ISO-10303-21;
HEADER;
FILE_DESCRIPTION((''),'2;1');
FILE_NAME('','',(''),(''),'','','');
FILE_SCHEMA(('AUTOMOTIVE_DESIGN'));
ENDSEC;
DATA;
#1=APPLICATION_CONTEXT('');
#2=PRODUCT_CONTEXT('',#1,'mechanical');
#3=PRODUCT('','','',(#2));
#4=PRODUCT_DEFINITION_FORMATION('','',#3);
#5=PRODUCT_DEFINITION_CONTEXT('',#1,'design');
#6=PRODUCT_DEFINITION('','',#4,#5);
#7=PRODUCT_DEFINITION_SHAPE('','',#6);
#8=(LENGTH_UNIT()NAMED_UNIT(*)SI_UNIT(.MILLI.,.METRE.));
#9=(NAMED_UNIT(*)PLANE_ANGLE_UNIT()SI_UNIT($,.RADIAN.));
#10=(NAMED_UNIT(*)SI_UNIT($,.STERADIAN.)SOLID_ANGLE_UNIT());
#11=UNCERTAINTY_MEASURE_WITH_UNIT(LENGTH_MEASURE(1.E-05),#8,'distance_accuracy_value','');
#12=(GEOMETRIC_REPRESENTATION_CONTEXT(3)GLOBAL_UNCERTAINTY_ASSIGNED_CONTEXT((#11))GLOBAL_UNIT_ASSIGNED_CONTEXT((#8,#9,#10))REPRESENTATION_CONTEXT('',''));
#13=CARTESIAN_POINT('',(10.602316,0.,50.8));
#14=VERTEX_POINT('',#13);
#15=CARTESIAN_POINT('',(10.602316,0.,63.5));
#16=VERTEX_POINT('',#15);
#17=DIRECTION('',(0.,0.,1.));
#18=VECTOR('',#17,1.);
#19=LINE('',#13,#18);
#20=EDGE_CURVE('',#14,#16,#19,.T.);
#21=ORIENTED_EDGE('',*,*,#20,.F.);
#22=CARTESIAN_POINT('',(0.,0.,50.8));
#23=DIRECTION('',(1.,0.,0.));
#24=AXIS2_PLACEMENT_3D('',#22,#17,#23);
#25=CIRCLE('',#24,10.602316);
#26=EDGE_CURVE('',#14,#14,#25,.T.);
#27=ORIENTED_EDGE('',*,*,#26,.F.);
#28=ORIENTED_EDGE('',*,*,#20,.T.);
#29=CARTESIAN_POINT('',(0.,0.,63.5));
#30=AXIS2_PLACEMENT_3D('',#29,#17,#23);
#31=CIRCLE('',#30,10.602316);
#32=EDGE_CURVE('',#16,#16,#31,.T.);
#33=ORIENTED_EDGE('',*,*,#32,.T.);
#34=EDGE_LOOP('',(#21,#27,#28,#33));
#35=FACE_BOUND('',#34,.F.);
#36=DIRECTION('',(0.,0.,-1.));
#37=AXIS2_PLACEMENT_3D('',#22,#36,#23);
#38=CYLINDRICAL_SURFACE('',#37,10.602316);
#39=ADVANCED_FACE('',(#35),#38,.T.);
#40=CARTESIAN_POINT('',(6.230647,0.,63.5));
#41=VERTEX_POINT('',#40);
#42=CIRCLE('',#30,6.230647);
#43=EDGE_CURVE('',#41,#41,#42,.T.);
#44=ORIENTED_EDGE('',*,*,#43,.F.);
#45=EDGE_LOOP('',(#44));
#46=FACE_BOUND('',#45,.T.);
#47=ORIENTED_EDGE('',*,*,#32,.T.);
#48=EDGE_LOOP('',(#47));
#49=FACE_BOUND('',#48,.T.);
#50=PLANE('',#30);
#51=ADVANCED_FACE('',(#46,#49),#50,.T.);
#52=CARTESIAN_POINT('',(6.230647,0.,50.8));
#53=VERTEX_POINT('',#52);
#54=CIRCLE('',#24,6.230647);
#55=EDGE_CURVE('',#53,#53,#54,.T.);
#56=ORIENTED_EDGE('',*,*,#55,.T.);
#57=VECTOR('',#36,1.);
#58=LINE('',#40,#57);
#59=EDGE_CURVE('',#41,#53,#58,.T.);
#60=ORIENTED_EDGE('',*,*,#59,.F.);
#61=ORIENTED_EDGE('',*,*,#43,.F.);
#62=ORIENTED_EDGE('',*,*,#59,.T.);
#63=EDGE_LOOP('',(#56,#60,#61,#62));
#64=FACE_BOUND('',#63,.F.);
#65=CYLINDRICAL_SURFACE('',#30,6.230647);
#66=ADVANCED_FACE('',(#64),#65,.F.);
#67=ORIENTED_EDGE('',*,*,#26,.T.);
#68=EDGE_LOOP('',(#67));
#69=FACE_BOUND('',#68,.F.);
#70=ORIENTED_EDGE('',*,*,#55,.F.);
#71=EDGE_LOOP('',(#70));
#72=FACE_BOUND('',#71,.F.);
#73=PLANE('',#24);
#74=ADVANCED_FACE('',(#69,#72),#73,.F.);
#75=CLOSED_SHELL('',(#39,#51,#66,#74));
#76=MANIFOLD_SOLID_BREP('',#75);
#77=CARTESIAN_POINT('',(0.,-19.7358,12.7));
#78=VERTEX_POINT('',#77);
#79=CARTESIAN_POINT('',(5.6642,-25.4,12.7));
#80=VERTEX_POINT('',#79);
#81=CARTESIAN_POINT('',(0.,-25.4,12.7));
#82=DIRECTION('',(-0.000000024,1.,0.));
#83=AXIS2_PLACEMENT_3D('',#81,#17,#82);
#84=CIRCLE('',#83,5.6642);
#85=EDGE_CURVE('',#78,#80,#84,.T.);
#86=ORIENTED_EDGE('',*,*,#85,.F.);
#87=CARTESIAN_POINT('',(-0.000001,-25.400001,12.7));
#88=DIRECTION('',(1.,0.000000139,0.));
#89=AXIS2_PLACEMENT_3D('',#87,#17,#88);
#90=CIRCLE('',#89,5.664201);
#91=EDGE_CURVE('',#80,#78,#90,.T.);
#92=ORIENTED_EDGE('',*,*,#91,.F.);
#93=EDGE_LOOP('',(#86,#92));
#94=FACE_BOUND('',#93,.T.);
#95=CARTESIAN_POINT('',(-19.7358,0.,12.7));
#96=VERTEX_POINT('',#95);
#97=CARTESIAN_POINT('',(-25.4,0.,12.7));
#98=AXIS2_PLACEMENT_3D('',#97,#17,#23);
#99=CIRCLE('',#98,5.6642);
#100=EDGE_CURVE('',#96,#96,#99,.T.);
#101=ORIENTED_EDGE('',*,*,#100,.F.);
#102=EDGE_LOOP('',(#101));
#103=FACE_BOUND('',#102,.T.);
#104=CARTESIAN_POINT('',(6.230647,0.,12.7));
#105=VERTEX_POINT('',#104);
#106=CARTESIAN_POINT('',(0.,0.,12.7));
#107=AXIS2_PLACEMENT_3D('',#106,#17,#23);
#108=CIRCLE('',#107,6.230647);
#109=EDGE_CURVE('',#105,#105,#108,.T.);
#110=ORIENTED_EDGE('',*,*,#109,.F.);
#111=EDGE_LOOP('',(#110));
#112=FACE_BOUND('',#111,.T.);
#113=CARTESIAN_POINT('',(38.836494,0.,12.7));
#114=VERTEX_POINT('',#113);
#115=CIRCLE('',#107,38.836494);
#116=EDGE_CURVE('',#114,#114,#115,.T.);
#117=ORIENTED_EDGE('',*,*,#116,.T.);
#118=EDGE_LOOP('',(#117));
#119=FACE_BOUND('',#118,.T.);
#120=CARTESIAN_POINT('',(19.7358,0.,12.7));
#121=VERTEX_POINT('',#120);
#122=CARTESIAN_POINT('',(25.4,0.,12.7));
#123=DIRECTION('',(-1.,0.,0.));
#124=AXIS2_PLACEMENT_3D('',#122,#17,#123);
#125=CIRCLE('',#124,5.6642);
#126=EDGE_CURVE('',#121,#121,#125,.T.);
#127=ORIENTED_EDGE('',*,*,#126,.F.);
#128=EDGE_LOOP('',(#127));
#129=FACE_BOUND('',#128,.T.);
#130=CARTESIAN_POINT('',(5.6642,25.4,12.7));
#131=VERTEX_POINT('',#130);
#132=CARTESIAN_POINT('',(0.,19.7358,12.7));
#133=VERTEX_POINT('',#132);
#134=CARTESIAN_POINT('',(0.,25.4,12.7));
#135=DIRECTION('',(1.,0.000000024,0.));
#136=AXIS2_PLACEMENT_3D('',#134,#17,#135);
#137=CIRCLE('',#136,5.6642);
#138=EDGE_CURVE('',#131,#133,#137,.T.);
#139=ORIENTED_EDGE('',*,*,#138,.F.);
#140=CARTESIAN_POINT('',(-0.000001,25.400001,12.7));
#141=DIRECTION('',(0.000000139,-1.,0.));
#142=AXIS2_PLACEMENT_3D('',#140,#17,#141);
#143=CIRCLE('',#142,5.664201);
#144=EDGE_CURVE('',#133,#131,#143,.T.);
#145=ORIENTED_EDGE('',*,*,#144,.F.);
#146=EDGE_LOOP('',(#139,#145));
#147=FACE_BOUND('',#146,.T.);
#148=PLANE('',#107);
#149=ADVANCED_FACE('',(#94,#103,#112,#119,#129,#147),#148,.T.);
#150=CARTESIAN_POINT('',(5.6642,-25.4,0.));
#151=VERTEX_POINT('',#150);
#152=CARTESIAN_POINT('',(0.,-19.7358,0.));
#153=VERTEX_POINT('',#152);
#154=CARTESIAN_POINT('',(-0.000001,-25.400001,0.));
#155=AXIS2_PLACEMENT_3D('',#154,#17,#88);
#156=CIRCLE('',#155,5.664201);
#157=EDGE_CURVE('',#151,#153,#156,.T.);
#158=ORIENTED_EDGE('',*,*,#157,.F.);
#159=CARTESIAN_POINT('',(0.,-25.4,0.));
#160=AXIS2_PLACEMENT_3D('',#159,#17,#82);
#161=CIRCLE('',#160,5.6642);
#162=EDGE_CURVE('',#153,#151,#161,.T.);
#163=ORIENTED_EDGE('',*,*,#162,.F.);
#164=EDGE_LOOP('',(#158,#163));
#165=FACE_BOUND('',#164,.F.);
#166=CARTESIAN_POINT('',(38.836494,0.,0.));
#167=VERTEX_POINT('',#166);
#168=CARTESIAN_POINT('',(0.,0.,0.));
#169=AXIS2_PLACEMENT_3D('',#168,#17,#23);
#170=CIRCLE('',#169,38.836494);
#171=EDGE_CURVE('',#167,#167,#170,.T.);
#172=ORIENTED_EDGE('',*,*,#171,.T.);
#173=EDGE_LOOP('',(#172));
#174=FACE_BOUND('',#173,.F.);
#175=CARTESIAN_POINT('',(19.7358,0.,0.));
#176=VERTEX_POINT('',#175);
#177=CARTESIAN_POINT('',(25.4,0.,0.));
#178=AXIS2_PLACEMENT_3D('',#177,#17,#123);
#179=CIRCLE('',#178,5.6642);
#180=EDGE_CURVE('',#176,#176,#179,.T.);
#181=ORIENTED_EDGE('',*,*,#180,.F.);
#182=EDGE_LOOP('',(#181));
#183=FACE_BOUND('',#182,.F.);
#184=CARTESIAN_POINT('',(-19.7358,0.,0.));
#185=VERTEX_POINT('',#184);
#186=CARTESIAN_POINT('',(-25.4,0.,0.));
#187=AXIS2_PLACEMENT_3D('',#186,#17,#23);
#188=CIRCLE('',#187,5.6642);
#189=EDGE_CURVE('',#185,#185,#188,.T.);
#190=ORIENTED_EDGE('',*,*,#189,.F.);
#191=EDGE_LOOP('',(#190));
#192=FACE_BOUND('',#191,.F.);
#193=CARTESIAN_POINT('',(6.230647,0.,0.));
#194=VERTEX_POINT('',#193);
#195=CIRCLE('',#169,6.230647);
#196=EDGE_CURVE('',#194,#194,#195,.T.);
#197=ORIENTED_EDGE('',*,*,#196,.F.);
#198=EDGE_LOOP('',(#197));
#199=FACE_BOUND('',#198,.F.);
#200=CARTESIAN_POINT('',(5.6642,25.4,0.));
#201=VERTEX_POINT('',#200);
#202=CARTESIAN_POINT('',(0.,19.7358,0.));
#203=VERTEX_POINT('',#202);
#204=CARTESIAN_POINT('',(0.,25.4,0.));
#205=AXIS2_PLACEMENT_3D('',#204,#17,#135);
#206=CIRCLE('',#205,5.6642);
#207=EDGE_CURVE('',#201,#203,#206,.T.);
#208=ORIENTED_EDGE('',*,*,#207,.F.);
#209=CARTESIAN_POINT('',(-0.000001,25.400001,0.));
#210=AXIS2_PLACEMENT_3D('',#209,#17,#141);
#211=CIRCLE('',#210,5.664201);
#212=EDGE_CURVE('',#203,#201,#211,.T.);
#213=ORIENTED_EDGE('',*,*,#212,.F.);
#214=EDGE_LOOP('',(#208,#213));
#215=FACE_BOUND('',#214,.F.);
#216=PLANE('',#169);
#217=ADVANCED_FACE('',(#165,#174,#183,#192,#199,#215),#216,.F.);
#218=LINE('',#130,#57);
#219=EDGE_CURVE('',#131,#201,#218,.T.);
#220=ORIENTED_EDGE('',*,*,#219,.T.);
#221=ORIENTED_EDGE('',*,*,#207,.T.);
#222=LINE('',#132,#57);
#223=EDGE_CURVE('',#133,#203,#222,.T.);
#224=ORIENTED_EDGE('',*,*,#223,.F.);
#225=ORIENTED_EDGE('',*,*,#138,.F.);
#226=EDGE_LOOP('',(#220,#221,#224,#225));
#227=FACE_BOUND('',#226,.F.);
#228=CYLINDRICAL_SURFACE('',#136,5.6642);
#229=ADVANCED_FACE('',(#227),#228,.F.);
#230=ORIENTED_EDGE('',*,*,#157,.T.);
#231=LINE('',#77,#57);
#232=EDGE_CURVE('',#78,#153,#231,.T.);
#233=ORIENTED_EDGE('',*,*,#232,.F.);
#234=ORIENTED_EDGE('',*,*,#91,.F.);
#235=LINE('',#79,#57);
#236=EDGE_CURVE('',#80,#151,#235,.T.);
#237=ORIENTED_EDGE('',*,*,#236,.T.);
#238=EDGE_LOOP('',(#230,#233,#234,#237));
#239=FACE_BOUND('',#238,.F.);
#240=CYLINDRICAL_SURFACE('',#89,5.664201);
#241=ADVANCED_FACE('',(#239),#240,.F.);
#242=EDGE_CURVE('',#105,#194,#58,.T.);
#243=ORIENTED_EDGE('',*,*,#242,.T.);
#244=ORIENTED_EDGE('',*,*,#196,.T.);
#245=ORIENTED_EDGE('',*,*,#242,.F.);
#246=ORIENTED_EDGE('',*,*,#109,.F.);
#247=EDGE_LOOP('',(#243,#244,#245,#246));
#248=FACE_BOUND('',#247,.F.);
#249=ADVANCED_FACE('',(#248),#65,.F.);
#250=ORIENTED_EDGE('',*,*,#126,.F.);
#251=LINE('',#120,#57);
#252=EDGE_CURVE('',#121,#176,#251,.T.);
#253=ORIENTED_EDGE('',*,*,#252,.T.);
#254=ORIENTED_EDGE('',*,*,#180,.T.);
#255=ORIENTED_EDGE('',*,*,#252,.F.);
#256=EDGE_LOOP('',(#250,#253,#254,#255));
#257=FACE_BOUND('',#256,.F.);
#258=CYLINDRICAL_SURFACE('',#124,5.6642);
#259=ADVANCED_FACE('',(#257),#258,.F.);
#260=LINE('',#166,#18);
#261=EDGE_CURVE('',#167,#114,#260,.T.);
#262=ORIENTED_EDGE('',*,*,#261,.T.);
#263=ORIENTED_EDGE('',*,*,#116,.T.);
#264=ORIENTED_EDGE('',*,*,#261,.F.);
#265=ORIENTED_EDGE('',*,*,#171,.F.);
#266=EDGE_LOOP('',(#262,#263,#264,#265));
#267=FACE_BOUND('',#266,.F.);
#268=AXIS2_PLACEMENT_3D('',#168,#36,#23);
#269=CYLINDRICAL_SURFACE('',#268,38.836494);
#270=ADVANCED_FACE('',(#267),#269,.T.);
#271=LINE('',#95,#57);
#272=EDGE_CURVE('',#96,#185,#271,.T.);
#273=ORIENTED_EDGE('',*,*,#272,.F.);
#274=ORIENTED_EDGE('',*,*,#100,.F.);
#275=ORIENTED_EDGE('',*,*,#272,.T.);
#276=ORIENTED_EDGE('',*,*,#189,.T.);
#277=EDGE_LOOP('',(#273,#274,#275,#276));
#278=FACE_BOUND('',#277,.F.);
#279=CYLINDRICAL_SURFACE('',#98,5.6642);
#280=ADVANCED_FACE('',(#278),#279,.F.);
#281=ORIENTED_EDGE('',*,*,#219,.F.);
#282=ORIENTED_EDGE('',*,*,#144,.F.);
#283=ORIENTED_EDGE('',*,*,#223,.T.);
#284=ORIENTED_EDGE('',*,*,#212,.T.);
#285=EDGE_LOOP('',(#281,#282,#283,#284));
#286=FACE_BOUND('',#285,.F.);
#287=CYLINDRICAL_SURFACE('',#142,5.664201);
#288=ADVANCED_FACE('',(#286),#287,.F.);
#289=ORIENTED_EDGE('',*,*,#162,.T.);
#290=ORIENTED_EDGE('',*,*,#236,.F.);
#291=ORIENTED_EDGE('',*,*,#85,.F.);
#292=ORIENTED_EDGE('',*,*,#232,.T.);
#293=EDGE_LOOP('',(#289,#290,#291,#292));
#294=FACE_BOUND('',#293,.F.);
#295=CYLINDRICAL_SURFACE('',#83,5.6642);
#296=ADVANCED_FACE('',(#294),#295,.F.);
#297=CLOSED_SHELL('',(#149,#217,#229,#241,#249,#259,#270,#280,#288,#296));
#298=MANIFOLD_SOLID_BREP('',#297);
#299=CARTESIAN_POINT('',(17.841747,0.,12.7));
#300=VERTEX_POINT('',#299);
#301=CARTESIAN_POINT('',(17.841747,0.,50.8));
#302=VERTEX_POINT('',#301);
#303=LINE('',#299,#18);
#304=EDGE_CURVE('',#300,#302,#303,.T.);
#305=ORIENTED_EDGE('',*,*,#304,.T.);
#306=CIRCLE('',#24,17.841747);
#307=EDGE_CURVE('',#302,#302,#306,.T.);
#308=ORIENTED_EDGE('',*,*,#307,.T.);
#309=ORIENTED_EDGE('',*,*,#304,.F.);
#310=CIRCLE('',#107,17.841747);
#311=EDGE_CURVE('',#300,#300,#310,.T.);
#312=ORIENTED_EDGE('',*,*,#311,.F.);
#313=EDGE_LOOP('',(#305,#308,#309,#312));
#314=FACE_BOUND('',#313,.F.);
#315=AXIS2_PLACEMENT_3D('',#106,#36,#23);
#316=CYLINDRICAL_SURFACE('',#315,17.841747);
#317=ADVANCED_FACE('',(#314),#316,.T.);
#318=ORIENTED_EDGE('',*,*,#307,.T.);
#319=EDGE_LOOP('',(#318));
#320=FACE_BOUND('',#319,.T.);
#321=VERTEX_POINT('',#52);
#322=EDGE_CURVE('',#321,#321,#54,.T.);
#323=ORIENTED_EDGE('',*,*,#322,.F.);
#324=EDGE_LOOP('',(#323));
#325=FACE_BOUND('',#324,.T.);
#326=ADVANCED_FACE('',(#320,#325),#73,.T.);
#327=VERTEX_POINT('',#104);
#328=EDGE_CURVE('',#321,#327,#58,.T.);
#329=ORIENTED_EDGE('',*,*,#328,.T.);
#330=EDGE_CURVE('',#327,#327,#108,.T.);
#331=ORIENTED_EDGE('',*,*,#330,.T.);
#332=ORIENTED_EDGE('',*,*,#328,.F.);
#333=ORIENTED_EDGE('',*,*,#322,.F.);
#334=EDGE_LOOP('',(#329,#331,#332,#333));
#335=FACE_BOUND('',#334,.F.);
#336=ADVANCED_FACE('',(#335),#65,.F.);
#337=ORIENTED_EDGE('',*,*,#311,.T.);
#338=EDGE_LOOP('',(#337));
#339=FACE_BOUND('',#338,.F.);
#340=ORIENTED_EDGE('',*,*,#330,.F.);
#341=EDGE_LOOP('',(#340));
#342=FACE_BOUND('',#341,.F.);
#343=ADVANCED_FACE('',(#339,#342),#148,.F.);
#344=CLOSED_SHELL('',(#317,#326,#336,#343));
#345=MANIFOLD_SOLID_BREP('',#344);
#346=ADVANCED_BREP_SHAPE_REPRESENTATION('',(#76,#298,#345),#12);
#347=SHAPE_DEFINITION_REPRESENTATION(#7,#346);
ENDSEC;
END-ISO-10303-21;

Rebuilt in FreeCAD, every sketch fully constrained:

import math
import FreeCAD as App
import Part
import Sketcher
from FreeCAD import Vector
Q = App.Units.Quantity

doc = App.newDocument("Part")
body = doc.addObject("PartDesign::Body", "Body")

sketch1 = doc.addObject("Sketcher::SketchObject", "Sketch")
body.addObject(sketch1)
sketch1.AttachmentSupport = (doc.XY_Plane, [""])
sketch1.MapMode = "FlatFace"
sketch1.addGeometry(Part.Circle(Vector(0, 0, 0), Vector(0, 0, 1), 39), False)
sketch1.addConstraint([
    Sketcher.Constraint("Coincident", 0, 3, -1, 1),
    Sketcher.Constraint("Diameter", 0, Q("77.672988 mm")),
])
pad1 = doc.addObject("PartDesign::Pad", "Pad")
body.addObject(pad1)
pad1.Profile = sketch1
pad1.Length = Q("0.5 in")
body2 = doc.addObject("PartDesign::Body", "Body001")

sketch2 = doc.addObject("Sketcher::SketchObject", "Sketch001")
body2.addObject(sketch2)
sketch2.AttachmentSupport = (doc.getObject("XY_Plane001"), [""])
sketch2.MapMode = "FlatFace"
sketch2.AttachmentOffset = App.Placement(Vector(0, 0, 0.5 * 25.4), App.Rotation())
sketch2.addGeometry(Part.Circle(Vector(0, 0, 0), Vector(0, 0, 1), 18), False)
sketch2.addConstraint([
    Sketcher.Constraint("Coincident", 0, 3, -1, 1),
    Sketcher.Constraint("Diameter", 0, Q("35.683494 mm")),
])
pad2 = doc.addObject("PartDesign::Pad", "Pad001")
body2.addObject(pad2)
pad2.Profile = sketch2
pad2.Length = Q("1.5 in")
body3 = doc.addObject("PartDesign::Body", "Body002")

sketch3 = doc.addObject("Sketcher::SketchObject", "Sketch002")
body3.addObject(sketch3)
sketch3.AttachmentSupport = (doc.getObject("XY_Plane002"), [""])
sketch3.MapMode = "FlatFace"
sketch3.AttachmentOffset = App.Placement(Vector(0, 0, 2 * 25.4), App.Rotation())
sketch3.addGeometry(Part.Circle(Vector(0, 0, 0), Vector(0, 0, 1), 11), False)
sketch3.addConstraint([
    Sketcher.Constraint("Coincident", 0, 3, -1, 1),
    Sketcher.Constraint("Diameter", 0, Q("21.204632 mm")),
])
pad3 = doc.addObject("PartDesign::Pad", "Pad002")
body3.addObject(pad3)
pad3.Profile = sketch3
pad3.Length = Q("0.5 in")
body4 = doc.addObject("PartDesign::Body", "Body003")

sketch4 = doc.addObject("Sketcher::SketchObject", "Sketch003")
body4.addObject(sketch4)
sketch4.AttachmentSupport = (doc.getObject("XY_Plane003"), [""])
sketch4.MapMode = "FlatFace"
sketch4.AttachmentOffset = App.Placement(Vector(0, 0, 2.5 * 25.4), App.Rotation())
sketch4.addGeometry(Part.Circle(Vector(0, 0, 0), Vector(0, 0, 1), 6), False)
sketch4.addConstraint([
    Sketcher.Constraint("Coincident", 0, 3, -1, 1),
    Sketcher.Constraint("Diameter", 0, Q("12.461294 mm")),
])
pad4 = doc.addObject("PartDesign::Pad", "Pad003")
body4.addObject(pad4)
pad4.Profile = sketch4
pad4.Length = Q("2.5 in")
pad4.Reversed = True
doc.recompute()

body5 = doc.addObject("PartDesign::Body", "Body004")
body5.BaseFeature = body4
boolean = doc.addObject("PartDesign::Boolean", "Boolean")
body.addObject(boolean)
boolean.Type = "Cut"
boolean.addObjects([body5])
doc.recompute()

sketch5 = doc.addObject("Sketcher::SketchObject", "Sketch004")
body.addObject(sketch5)
sketch5.AttachmentSupport = (doc.XY_Plane, [""])
sketch5.MapMode = "FlatFace"
sketch5.AttachmentOffset = App.Placement(Vector(0, 0, 0.5 * 25.4), App.Rotation())
sketch5.addGeometry([
    Part.ArcOfCircle(Part.Circle(Vector(0, 25, 0), Vector(0, 0, 1), 6), math.radians(0), math.radians(270)),
    Part.ArcOfCircle(Part.Circle(Vector(0, 25, 0), Vector(0, 0, 1), 6), math.radians(-90), math.radians(0)),
    Part.ArcOfCircle(Part.Circle(Vector(0, -25, 0), Vector(0, 0, 1), 6), math.radians(0), math.radians(90)),
    Part.ArcOfCircle(Part.Circle(Vector(0, -25, 0), Vector(0, 0, 1), 6), math.radians(90), math.radians(360)),
    Part.Circle(Vector(25, 0, 0), Vector(0, 0, 1), 6),
    Part.Circle(Vector(-25, 0, 0), Vector(0, 0, 1), 6),
], False)
sketch5.addConstraint([
    Sketcher.Constraint("Tangent", 0, 1, 1, 2),
    Sketcher.Constraint("Coincident", 1, 1, 0, 2),
    Sketcher.Constraint("Tangent", 2, 1, 3, 2),
    Sketcher.Constraint("Coincident", 3, 1, 2, 2),
    Sketcher.Constraint("Equal", 1, 2),
    Sketcher.Constraint("Equal", 3, 4),
    Sketcher.Constraint("Equal", 4, 5),
    Sketcher.Constraint("Symmetric", 0, 3, 2, 3, -1, 1),
    Sketcher.Constraint("Symmetric", 4, 3, 5, 3, -1, 1),
    Sketcher.Constraint("Symmetric", 0, 1, 2, 1, -1),
    Sketcher.Constraint("PointOnObject", 4, 3, -1),
    Sketcher.Constraint("PointOnObject", 1, 1, -2),
    Sketcher.Constraint("PointOnObject", 3, 1, -2),
    Sketcher.Constraint("Horizontal", 1, 3, 0, 1),
    Sketcher.Constraint("Diameter", 4, Q("0.446 in")),
    Sketcher.Constraint("DistanceY", -1, 1, 0, 3, Q("1 in")),
    Sketcher.Constraint("DistanceX", -1, 1, 4, 3, Q("1 in")),
])
pocket1 = doc.addObject("PartDesign::Pocket", "Pocket")
body.addObject(pocket1)
pocket1.Profile = sketch5
pocket1.Length = Q("1 in")
doc.recompute()

body6 = doc.addObject("PartDesign::Body", "Body005")
body6.BaseFeature = body4
boolean2 = doc.addObject("PartDesign::Boolean", "Boolean001")
body2.addObject(boolean2)
boolean2.Type = "Cut"
boolean2.addObjects([body6])
doc.recompute()

boolean3 = doc.addObject("PartDesign::Boolean", "Boolean002")
body3.addObject(boolean3)
boolean3.Type = "Cut"
boolean3.addObjects([body4])

doc.recompute()
